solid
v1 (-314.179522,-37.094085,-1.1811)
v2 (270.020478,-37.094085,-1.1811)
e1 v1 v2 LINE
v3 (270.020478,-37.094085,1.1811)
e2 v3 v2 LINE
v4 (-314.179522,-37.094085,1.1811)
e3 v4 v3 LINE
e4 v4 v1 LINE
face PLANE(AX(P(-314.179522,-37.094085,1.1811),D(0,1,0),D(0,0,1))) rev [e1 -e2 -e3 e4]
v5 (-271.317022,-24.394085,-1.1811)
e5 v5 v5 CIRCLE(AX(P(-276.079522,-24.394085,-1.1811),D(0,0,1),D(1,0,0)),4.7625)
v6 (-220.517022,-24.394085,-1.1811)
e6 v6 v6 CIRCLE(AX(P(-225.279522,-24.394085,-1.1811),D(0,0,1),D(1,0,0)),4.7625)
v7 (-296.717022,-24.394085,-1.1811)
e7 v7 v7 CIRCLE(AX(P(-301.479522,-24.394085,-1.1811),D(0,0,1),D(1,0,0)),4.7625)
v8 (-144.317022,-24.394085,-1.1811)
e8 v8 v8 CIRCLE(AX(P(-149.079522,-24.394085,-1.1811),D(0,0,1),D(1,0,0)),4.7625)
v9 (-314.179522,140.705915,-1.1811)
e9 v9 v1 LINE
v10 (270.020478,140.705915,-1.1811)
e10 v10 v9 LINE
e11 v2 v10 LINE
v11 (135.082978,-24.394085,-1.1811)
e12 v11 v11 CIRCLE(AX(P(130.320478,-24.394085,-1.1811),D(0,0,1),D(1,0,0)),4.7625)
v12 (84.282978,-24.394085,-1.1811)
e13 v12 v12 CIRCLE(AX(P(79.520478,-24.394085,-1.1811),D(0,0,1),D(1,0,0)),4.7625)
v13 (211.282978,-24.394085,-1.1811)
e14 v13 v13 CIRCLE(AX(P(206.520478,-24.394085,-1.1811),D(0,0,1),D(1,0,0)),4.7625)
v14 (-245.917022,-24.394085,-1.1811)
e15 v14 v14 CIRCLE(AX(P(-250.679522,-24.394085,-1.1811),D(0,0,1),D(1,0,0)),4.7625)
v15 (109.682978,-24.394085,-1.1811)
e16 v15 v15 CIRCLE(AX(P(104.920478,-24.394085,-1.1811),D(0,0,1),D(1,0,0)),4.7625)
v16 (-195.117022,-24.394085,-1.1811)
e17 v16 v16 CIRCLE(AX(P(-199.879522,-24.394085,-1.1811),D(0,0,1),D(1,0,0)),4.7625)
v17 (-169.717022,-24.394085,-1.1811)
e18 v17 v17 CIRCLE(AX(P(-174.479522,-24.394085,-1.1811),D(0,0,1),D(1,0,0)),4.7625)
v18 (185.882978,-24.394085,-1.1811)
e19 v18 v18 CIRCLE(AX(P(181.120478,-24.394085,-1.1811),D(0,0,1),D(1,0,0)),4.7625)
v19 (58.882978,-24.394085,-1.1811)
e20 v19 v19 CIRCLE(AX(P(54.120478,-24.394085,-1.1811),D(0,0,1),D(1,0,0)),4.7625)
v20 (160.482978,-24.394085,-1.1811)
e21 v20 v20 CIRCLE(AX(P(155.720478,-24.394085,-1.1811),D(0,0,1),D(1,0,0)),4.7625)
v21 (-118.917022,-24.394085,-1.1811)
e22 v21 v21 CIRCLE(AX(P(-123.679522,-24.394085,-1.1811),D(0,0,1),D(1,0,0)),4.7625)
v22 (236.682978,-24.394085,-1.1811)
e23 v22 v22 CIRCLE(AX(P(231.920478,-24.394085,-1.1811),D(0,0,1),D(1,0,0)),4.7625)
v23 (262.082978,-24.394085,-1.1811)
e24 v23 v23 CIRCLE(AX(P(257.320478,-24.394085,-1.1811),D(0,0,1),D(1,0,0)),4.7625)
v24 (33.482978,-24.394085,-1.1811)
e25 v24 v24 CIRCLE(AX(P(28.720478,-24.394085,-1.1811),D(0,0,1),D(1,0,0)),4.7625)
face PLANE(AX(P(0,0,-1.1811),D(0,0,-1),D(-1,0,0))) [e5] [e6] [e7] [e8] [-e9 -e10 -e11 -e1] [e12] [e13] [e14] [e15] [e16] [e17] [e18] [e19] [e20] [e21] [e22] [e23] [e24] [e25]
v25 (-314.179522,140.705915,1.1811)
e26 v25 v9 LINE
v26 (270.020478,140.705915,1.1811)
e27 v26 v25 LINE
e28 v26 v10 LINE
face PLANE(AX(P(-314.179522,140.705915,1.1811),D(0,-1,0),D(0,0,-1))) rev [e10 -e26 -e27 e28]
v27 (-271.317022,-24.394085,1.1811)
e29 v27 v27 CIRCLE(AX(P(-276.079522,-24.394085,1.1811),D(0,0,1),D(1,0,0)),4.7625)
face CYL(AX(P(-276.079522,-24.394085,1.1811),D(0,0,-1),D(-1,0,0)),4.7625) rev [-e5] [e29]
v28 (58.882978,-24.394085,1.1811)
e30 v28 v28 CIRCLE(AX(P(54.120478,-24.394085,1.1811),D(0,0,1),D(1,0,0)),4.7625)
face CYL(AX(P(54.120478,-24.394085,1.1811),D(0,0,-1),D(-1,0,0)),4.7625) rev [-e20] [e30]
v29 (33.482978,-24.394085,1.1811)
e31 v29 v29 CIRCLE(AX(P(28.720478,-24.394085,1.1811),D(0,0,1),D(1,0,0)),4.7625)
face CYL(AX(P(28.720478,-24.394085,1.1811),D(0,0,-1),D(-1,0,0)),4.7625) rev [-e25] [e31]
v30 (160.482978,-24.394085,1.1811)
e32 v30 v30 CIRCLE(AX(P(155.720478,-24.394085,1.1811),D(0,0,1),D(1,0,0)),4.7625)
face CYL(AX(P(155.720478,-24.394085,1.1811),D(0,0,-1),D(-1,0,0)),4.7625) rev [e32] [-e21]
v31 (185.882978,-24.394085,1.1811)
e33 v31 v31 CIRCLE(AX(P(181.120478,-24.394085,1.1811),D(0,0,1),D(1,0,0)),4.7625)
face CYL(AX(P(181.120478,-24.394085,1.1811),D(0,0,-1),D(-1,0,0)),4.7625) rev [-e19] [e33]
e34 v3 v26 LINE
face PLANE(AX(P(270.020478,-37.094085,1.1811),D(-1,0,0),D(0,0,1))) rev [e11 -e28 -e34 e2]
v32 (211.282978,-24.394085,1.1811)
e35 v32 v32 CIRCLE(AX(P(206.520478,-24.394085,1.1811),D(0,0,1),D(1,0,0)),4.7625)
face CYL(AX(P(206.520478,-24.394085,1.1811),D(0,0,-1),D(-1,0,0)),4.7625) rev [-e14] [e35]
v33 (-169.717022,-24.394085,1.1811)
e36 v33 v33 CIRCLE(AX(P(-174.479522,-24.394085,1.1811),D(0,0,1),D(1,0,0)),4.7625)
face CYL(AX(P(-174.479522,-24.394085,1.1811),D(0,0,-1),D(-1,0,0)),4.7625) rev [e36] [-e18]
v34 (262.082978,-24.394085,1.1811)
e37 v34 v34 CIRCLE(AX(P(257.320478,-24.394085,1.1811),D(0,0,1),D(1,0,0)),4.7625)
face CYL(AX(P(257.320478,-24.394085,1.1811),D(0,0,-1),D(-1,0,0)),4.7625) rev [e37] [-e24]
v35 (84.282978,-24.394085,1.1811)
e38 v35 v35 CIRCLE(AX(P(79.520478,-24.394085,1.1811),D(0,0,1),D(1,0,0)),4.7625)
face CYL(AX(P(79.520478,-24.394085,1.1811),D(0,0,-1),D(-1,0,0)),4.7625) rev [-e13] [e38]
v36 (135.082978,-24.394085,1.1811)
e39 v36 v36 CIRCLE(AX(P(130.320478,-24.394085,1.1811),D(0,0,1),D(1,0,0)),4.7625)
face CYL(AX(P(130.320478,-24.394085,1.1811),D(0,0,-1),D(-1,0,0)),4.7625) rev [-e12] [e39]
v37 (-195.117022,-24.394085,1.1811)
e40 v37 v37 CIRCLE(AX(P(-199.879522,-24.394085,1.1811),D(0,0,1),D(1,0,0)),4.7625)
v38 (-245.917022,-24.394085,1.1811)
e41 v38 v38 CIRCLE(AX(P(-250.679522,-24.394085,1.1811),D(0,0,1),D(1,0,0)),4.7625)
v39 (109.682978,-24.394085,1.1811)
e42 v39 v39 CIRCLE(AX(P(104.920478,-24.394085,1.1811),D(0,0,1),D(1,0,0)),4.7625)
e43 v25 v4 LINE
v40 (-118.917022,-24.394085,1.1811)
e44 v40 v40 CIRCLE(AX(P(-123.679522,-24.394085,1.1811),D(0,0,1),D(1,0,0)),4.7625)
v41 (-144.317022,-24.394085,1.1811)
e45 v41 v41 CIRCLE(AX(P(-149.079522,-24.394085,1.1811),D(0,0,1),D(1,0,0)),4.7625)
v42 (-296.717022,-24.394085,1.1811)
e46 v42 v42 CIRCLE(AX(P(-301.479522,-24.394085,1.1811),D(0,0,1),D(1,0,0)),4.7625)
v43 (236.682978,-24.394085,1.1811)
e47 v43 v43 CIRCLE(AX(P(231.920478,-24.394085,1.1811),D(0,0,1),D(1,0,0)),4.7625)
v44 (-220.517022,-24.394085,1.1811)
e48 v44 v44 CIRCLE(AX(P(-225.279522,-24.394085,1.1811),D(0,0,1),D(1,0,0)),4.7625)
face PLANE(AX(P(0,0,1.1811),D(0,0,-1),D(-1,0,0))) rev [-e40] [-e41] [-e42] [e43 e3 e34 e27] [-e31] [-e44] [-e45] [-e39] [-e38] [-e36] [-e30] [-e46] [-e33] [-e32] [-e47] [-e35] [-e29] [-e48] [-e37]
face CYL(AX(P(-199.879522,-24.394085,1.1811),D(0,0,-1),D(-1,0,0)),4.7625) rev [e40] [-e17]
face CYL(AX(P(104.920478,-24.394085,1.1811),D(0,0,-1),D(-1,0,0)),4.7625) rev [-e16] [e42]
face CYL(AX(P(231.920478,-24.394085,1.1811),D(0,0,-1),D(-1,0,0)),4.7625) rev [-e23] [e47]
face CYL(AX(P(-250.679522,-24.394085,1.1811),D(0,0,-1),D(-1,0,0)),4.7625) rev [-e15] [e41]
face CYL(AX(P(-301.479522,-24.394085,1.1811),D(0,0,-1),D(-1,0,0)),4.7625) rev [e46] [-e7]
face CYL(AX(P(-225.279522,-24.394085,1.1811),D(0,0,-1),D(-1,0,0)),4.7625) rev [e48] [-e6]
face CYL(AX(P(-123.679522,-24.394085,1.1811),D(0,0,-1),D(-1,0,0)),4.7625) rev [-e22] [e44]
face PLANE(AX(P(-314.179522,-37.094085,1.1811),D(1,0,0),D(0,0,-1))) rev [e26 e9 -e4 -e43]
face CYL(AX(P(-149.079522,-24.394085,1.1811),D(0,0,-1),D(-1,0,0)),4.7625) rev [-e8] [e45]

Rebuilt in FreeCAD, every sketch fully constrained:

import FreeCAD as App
import Part
import Sketcher
from FreeCAD import Vector
Q = App.Units.Quantity

doc = App.newDocument("Part")
params = doc.addObject("Spreadsheet::Sheet", "Params")
for row, (alias, value) in enumerate([
    ("sketch1_width", "23 in"),
    ("sketch1_height", "7 in"),
    ("sketch1_diameter", "0.375 in"),
    ("pad1_length", "0.093 in"),
], start=1):
    params.set(f"A{row}", alias)
    params.set(f"B{row}", "=" + value)
    params.setAlias(f"B{row}", alias)

body = doc.addObject("PartDesign::Body", "Body")

sketch1 = doc.addObject("Sketcher::SketchObject", "Sketch")
body.addObject(sketch1)
sketch1.AttachmentSupport = (doc.XY_Plane, [""])
sketch1.MapMode = "FlatFace"
sketch1.addGeometry([
    Part.LineSegment(Vector(-314.179522, 140.705915, 0), Vector(-314.179522, -37.094085, 0)),
    Part.LineSegment(Vector(-314.179522, -37.094085, 0), Vector(270.020478, -37.094085, 0)),
    Part.LineSegment(Vector(270.020478, -37.094085, 0), Vector(270.020478, 140.705915, 0)),
    Part.LineSegment(Vector(270.020478, 140.705915, 0), Vector(-314.179522, 140.705915, 0)),
    Part.Circle(Vector(-301.479522, -24.394085, 0), Vector(0, 0, 1), 4.7625),
    Part.Circle(Vector(-276.079522, -24.394085, 0), Vector(0, 0, 1), 4.7625),
    Part.Circle(Vector(-250.679522, -24.394085, 0), Vector(0, 0, 1), 4.7625),
    Part.Circle(Vector(-225.279522, -24.394085, 0), Vector(0, 0, 1), 4.7625),
    Part.Circle(Vector(-199.879522, -24.394085, 0), Vector(0, 0, 1), 4.7625),
    Part.Circle(Vector(-174.479522, -24.394085, 0), Vector(0, 0, 1), 4.7625),
    Part.Circle(Vector(-149.079522, -24.394085, 0), Vector(0, 0, 1), 4.7625),
    Part.Circle(Vector(-123.679522, -24.394085, 0), Vector(0, 0, 1), 4.7625),
    Part.Circle(Vector(28.720478, -24.394085, 0), Vector(0, 0, 1), 4.7625),
    Part.Circle(Vector(54.120478, -24.394085, 0), Vector(0, 0, 1), 4.7625),
    Part.Circle(Vector(79.520478, -24.394085, 0), Vector(0, 0, 1), 4.7625),
    Part.Circle(Vector(104.920478, -24.394085, 0), Vector(0, 0, 1), 4.7625),
    Part.Circle(Vector(130.320478, -24.394085, 0), Vector(0, 0, 1), 4.7625),
    Part.Circle(Vector(155.720478, -24.394085, 0), Vector(0, 0, 1), 4.7625),
    Part.Circle(Vector(181.120478, -24.394085, 0), Vector(0, 0, 1), 4.7625),
    Part.Circle(Vector(206.520478, -24.394085, 0), Vector(0, 0, 1), 4.7625),
    Part.Circle(Vector(231.920478, -24.394085, 0), Vector(0, 0, 1), 4.7625),
    Part.Circle(Vector(257.320478, -24.394085, 0), Vector(0, 0, 1), 4.7625),
], False)
sketch1.addConstraint([
    Sketcher.Constraint("Coincident", 0, 2, 1, 1),
    Sketcher.Constraint("Coincident", 1, 2, 2, 1),
    Sketcher.Constraint("Coincident", 2, 2, 3, 1),
    Sketcher.Constraint("Coincident", 3, 2, 0, 1),
    Sketcher.Constraint("Vertical", 0),
    Sketcher.Constraint("Horizontal", 1),
    Sketcher.Constraint("Vertical", 2),
    Sketcher.Constraint("Horizontal", 3),
    Sketcher.Constraint("Equal", 4, 5),
    Sketcher.Constraint("Equal", 5, 6),
    Sketcher.Constraint("Equal", 6, 7),
    Sketcher.Constraint("Equal", 7, 8),
    Sketcher.Constraint("Equal", 8, 9),
    Sketcher.Constraint("Equal", 9, 10),
    Sketcher.Constraint("Equal", 10, 11),
    Sketcher.Constraint("Equal", 11, 12),
    Sketcher.Constraint("Equal", 12, 13),
    Sketcher.Constraint("Equal", 13, 14),
    Sketcher.Constraint("Equal", 14, 15),
    Sketcher.Constraint("Equal", 15, 16),
    Sketcher.Constraint("Equal", 16, 17),
    Sketcher.Constraint("Equal", 17, 18),
    Sketcher.Constraint("Equal", 18, 19),
    Sketcher.Constraint("Equal", 19, 20),
    Sketcher.Constraint("Equal", 20, 21),
    Sketcher.Constraint("Horizontal", 4, 3, 5, 3),
    Sketcher.Constraint("Horizontal", 5, 3, 6, 3),
    Sketcher.Constraint("Horizontal", 6, 3, 7, 3),
    Sketcher.Constraint("Horizontal", 7, 3, 8, 3),
    Sketcher.Constraint("Horizontal", 8, 3, 9, 3),
    Sketcher.Constraint("Horizontal", 9, 3, 10, 3),
    Sketcher.Constraint("Horizontal", 10, 3, 11, 3),
    Sketcher.Constraint("Horizontal", 11, 3, 12, 3),
    Sketcher.Constraint("Horizontal", 12, 3, 13, 3),
    Sketcher.Constraint("Horizontal", 13, 3, 14, 3),
    Sketcher.Constraint("Horizontal", 14, 3, 15, 3),
    Sketcher.Constraint("Horizontal", 15, 3, 16, 3),
    Sketcher.Constraint("Horizontal", 16, 3, 17, 3),
    Sketcher.Constraint("Horizontal", 17, 3, 18, 3),
    Sketcher.Constraint("Horizontal", 18, 3, 19, 3),
    Sketcher.Constraint("Horizontal", 19, 3, 20, 3),
    Sketcher.Constraint("Horizontal", 20, 3, 21, 3),
    Sketcher.Constraint("DistanceX", 1, 1, 1, 2, Q("23 in")),
    Sketcher.Constraint("DistanceY", 0, 2, 0, 1, Q("7 in")),
    Sketcher.Constraint("Diameter", 4, Q("0.375 in")),
    Sketcher.Constraint("DistanceX", 4, 3, 5, 3, Q("1 in")),
    Sketcher.Constraint("DistanceX", 5, 3, 6, 3, Q("1 in")),
    Sketcher.Constraint("DistanceX", 6, 3, 7, 3, Q("1 in")),
    Sketcher.Constraint("DistanceX", 7, 3, 8, 3, Q("1 in")),
    Sketcher.Constraint("DistanceX", 8, 3, 9, 3, Q("1 in")),
    Sketcher.Constraint("DistanceX", 9, 3, 10, 3, Q("1 in")),
    Sketcher.Constraint("DistanceX", 10, 3, 11, 3, Q("1 in")),
    Sketcher.Constraint("DistanceX", 11, 3, 12, 3, Q("6 in")),
    Sketcher.Constraint("DistanceX", 12, 3, 13, 3, Q("1 in")),
    Sketcher.Constraint("DistanceX", 13, 3, 14, 3, Q("1 in")),
    Sketcher.Constraint("DistanceX", 14, 3, 15, 3, Q("1 in")),
    Sketcher.Constraint("DistanceX", 15, 3, 16, 3, Q("1 in")),
    Sketcher.Constraint("DistanceX", 16, 3, 17, 3, Q("1 in")),
    Sketcher.Constraint("DistanceX", 17, 3, 18, 3, Q("1 in")),
    Sketcher.Constraint("DistanceX", 18, 3, 19, 3, Q("1 in")),
    Sketcher.Constraint("DistanceX", 19, 3, 20, 3, Q("1 in")),
    Sketcher.Constraint("DistanceX", 20, 3, 21, 3, Q("1 in")),
    Sketcher.Constraint("DistanceX", 0, 2, 4, 3, Q("0.5 in")),
    Sketcher.Constraint("DistanceY", 0, 2, 4, 3, Q("0.5 in")),
    Sketcher.Constraint("DistanceX", 4, 3, -1, 1, Q("301.479522 mm")),
    Sketcher.Constraint("DistanceY", 4, 3, -1, 1, Q("24.394085 mm")),
])
sketch1.setExpression("Constraints[42]", "Params.sketch1_width")
sketch1.setExpression("Constraints[43]", "Params.sketch1_height")
sketch1.setExpression("Constraints[44]", "Params.sketch1_diameter")
pad1 = doc.addObject("PartDesign::Pad", "Pad")
body.addObject(pad1)
pad1.Profile = sketch1
pad1.setExpression("Length", "Params.pad1_length")
pad1.Midplane = True

doc.recompute()
